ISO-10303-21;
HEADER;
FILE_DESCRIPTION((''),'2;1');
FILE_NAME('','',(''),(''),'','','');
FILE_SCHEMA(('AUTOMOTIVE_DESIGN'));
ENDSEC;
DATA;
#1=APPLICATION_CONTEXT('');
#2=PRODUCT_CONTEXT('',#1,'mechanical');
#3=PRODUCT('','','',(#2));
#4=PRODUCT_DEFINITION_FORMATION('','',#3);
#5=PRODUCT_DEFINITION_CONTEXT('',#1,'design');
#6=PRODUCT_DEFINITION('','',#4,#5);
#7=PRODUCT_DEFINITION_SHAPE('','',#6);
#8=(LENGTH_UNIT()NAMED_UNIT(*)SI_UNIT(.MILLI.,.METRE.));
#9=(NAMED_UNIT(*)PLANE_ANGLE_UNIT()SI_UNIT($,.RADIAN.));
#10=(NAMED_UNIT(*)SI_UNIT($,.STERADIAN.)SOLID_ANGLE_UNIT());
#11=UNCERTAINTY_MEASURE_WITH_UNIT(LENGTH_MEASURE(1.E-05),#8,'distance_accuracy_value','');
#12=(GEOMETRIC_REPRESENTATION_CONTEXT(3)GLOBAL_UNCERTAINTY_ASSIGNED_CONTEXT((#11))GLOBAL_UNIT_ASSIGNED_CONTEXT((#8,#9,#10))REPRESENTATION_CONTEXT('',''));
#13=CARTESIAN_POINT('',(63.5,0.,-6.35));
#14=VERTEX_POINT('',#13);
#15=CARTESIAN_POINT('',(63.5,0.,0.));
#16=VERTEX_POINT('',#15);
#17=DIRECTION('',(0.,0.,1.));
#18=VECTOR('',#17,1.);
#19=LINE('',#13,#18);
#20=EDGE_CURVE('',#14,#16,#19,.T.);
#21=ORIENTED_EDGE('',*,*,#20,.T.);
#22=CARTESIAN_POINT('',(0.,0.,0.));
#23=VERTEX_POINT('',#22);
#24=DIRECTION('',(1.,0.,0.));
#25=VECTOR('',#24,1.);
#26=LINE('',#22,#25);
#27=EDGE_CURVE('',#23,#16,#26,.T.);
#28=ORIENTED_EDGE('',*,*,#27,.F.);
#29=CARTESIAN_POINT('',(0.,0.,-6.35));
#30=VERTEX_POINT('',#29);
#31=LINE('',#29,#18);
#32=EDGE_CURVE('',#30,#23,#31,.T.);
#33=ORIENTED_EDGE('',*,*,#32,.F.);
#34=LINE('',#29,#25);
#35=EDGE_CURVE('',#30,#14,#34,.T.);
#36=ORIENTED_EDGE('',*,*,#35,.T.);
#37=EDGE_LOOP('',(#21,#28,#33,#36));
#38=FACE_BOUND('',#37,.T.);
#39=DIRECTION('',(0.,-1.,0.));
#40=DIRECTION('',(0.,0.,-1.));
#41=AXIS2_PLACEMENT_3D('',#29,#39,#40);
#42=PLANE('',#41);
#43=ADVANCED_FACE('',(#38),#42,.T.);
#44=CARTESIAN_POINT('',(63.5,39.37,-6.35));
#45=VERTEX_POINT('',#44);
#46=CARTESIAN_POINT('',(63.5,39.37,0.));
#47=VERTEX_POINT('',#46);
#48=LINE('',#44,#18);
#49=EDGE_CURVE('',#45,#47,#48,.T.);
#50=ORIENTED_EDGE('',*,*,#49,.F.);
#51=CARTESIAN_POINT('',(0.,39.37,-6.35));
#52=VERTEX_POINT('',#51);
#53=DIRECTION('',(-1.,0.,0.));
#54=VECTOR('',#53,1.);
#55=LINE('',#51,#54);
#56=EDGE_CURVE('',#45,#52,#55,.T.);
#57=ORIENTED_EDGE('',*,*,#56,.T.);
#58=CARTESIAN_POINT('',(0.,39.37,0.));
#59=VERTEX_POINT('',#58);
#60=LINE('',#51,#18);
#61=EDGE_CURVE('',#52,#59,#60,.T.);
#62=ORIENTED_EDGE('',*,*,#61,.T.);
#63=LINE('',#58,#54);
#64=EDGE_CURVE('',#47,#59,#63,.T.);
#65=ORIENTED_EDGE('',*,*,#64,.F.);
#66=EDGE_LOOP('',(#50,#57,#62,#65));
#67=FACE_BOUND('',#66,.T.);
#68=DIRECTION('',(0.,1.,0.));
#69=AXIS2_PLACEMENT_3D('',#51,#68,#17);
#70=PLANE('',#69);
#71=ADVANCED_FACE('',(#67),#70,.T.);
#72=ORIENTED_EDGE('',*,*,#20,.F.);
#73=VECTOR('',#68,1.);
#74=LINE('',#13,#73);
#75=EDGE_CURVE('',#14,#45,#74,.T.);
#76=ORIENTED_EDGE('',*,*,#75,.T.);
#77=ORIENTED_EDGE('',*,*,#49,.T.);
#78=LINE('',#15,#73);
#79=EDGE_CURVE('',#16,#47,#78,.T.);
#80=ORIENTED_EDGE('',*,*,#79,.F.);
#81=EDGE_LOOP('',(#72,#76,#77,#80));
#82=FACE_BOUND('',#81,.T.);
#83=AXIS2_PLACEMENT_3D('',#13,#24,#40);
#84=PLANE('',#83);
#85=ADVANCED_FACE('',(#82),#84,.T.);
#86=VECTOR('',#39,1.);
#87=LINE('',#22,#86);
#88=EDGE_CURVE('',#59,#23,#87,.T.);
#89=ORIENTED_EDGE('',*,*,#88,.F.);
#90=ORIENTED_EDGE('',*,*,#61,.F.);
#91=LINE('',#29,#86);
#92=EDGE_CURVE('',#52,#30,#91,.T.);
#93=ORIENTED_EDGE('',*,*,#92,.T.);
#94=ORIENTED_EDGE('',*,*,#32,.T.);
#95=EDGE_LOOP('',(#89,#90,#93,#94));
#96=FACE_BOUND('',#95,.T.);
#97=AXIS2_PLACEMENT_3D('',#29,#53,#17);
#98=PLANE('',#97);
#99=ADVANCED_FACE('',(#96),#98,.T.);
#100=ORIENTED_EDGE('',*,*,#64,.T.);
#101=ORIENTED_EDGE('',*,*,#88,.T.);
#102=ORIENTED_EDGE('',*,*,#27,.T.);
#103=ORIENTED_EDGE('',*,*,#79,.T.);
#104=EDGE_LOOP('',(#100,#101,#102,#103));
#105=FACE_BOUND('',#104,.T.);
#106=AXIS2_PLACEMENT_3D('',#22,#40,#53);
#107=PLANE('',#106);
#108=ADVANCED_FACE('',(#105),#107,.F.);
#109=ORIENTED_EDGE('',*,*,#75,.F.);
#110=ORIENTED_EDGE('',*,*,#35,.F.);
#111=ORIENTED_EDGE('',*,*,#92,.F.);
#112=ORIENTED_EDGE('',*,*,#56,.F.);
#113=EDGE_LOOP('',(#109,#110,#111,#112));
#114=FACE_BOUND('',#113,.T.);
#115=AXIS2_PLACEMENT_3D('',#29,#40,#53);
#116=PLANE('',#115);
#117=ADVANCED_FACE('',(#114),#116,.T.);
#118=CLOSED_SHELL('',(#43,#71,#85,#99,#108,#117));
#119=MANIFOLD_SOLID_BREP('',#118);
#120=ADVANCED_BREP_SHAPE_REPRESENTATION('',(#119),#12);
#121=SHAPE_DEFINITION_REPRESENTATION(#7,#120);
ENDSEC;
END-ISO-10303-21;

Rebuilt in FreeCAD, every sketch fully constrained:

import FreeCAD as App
import Part
import Sketcher
from FreeCAD import Vector
Q = App.Units.Quantity

doc = App.newDocument("Part")
body = doc.addObject("PartDesign::Body", "Body")

# Sketch on XY plane
sketch1 = body.newObject("Sketcher::SketchObject", "Sketch")
sketch1.AttachmentSupport = (doc.getObject("XY_Plane"), [""])
sketch1.MapMode = "FlatFace"
sketch1.addGeometry(Part.LineSegment(Vector(0, 39, 0), Vector(0, 0, 0)), False)
sketch1.addGeometry(Part.LineSegment(Vector(0, 0, 0), Vector(64, 0, 0)), False)
sketch1.addGeometry(Part.LineSegment(Vector(64, 0, 0), Vector(64, 39, 0)), False)
sketch1.addGeometry(Part.LineSegment(Vector(64, 39, 0), Vector(0, 39, 0)), False)
sketch1.addConstraint(Sketcher.Constraint("Coincident", 0, 2, 1, 1))
sketch1.addConstraint(Sketcher.Constraint("Coincident", 1, 2, 2, 1))
sketch1.addConstraint(Sketcher.Constraint("Coincident", 2, 2, 3, 1))
sketch1.addConstraint(Sketcher.Constraint("Coincident", 3, 2, 0, 1))
sketch1.addConstraint(Sketcher.Constraint("Vertical", 0))
sketch1.addConstraint(Sketcher.Constraint("Horizontal", 1))
sketch1.addConstraint(Sketcher.Constraint("Vertical", 2))
sketch1.addConstraint(Sketcher.Constraint("Horizontal", 3))
sketch1.addConstraint(Sketcher.Constraint("Coincident", 0, 2, -1, 1))
sketch1.addConstraint(Sketcher.Constraint("DistanceX", 1, 1, 1, 2, Q("2.5 in")))
sketch1.addConstraint(Sketcher.Constraint("DistanceY", 0, 2, 0, 1, Q("1.55 in")))
pad1 = body.newObject("PartDesign::Pad", "Pad")
pad1.Profile = sketch1
pad1.Length = Q("0.25 in")
pad1.Reversed = True

doc.recompute()
